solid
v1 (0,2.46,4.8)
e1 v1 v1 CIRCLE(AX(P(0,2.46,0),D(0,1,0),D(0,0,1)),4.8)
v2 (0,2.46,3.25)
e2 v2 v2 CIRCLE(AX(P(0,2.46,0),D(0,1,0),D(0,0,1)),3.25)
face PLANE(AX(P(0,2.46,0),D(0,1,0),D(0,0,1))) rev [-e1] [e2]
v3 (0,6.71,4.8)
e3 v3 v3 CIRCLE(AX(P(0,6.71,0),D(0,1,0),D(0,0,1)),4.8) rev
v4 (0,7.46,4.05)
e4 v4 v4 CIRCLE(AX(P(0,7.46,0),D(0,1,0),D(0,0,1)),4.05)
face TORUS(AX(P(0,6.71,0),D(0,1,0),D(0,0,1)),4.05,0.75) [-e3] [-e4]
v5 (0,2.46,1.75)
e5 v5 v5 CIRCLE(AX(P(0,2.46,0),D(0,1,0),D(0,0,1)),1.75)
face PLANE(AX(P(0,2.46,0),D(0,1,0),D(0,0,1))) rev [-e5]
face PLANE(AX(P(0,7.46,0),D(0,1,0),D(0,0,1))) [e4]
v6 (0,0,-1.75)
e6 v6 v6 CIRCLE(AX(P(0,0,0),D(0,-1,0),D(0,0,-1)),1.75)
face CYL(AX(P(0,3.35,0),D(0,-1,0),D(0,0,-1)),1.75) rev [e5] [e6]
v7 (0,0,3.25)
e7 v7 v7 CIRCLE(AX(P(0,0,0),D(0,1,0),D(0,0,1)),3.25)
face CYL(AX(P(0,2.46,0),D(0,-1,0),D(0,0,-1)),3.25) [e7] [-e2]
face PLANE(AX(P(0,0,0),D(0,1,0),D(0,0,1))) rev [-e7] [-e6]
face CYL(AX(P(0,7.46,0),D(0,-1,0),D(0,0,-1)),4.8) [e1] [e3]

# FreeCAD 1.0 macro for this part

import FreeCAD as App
import Part
import Sketcher

V = App.Vector
Q = App.Units.Quantity


def edges_at(feature, points):
    """Names of the edges that pass closest to the given points."""
    edges = feature.Shape.Edges
    near = lambda p: min(range(len(edges)), key=lambda i: edges[i].distToShape(Part.Vertex(*p))[0])
    return sorted({f"Edge{near(p) + 1}" for p in points})

doc = App.newDocument("Part")
body = doc.addObject("PartDesign::Body", "Body")

sketch1 = body.newObject("Sketcher::SketchObject", "Sketch")
sketch1.AttachmentSupport = (doc.getObject("XZ_Plane"), [""])
sketch1.MapMode = "FlatFace"
sketch1.addGeometry(Part.Circle(V(0, 0, 0), V(0, 0, 1), 3.2), False)
sketch1.addConstraint([
    Sketcher.Constraint("Coincident", 0, 3, -1, 1),
    Sketcher.Constraint("Diameter", 0, Q("6.5 mm")),
])
pad1 = body.newObject("PartDesign::Pad", "Pad")
pad1.Profile = sketch1
pad1.Length = 2.46
pad1.Reversed = True

sketch2 = body.newObject("Sketcher::SketchObject", "Sketch001")
sketch2.AttachmentSupport = (doc.getObject("XZ_Plane"), [""])
sketch2.MapMode = "FlatFace"
sketch2.addGeometry(Part.Circle(V(0, 0, 0), V(0, 0, 1), 1.8), False)
sketch2.addConstraint([
    Sketcher.Constraint("Coincident", 0, 3, -1, 1),
    Sketcher.Constraint("Diameter", 0, Q("3.5 mm")),
])
pocket1 = body.newObject("PartDesign::Pocket", "Pocket")
pocket1.Profile = sketch2
pocket1.Length = 3.35

sketch3 = body.newObject("Sketcher::SketchObject", "Sketch002")
sketch3.AttachmentSupport = (doc.getObject("XZ_Plane"), [""])
sketch3.MapMode = "FlatFace"
sketch3.AttachmentOffset = App.Placement(V(0, 0, -2.46), App.Rotation())
sketch3.addGeometry(Part.Circle(V(0, 0, 0), V(0, 0, 1), 4.8), False)
sketch3.addConstraint([
    Sketcher.Constraint("Coincident", 0, 3, -1, 1),
    Sketcher.Constraint("Diameter", 0, Q("9.6 mm")),
])
pad2 = body.newObject("PartDesign::Pad", "Pad001")
pad2.Profile = sketch3
pad2.Length = 5
pad2.Reversed = True
doc.recompute()

fillet = body.newObject("PartDesign::Fillet", "Fillet")
fillet.Base = (pad2, edges_at(pad2, [(-4.8, 7.46, 0)]))
fillet.Radius = 0.75

doc.recompute()
